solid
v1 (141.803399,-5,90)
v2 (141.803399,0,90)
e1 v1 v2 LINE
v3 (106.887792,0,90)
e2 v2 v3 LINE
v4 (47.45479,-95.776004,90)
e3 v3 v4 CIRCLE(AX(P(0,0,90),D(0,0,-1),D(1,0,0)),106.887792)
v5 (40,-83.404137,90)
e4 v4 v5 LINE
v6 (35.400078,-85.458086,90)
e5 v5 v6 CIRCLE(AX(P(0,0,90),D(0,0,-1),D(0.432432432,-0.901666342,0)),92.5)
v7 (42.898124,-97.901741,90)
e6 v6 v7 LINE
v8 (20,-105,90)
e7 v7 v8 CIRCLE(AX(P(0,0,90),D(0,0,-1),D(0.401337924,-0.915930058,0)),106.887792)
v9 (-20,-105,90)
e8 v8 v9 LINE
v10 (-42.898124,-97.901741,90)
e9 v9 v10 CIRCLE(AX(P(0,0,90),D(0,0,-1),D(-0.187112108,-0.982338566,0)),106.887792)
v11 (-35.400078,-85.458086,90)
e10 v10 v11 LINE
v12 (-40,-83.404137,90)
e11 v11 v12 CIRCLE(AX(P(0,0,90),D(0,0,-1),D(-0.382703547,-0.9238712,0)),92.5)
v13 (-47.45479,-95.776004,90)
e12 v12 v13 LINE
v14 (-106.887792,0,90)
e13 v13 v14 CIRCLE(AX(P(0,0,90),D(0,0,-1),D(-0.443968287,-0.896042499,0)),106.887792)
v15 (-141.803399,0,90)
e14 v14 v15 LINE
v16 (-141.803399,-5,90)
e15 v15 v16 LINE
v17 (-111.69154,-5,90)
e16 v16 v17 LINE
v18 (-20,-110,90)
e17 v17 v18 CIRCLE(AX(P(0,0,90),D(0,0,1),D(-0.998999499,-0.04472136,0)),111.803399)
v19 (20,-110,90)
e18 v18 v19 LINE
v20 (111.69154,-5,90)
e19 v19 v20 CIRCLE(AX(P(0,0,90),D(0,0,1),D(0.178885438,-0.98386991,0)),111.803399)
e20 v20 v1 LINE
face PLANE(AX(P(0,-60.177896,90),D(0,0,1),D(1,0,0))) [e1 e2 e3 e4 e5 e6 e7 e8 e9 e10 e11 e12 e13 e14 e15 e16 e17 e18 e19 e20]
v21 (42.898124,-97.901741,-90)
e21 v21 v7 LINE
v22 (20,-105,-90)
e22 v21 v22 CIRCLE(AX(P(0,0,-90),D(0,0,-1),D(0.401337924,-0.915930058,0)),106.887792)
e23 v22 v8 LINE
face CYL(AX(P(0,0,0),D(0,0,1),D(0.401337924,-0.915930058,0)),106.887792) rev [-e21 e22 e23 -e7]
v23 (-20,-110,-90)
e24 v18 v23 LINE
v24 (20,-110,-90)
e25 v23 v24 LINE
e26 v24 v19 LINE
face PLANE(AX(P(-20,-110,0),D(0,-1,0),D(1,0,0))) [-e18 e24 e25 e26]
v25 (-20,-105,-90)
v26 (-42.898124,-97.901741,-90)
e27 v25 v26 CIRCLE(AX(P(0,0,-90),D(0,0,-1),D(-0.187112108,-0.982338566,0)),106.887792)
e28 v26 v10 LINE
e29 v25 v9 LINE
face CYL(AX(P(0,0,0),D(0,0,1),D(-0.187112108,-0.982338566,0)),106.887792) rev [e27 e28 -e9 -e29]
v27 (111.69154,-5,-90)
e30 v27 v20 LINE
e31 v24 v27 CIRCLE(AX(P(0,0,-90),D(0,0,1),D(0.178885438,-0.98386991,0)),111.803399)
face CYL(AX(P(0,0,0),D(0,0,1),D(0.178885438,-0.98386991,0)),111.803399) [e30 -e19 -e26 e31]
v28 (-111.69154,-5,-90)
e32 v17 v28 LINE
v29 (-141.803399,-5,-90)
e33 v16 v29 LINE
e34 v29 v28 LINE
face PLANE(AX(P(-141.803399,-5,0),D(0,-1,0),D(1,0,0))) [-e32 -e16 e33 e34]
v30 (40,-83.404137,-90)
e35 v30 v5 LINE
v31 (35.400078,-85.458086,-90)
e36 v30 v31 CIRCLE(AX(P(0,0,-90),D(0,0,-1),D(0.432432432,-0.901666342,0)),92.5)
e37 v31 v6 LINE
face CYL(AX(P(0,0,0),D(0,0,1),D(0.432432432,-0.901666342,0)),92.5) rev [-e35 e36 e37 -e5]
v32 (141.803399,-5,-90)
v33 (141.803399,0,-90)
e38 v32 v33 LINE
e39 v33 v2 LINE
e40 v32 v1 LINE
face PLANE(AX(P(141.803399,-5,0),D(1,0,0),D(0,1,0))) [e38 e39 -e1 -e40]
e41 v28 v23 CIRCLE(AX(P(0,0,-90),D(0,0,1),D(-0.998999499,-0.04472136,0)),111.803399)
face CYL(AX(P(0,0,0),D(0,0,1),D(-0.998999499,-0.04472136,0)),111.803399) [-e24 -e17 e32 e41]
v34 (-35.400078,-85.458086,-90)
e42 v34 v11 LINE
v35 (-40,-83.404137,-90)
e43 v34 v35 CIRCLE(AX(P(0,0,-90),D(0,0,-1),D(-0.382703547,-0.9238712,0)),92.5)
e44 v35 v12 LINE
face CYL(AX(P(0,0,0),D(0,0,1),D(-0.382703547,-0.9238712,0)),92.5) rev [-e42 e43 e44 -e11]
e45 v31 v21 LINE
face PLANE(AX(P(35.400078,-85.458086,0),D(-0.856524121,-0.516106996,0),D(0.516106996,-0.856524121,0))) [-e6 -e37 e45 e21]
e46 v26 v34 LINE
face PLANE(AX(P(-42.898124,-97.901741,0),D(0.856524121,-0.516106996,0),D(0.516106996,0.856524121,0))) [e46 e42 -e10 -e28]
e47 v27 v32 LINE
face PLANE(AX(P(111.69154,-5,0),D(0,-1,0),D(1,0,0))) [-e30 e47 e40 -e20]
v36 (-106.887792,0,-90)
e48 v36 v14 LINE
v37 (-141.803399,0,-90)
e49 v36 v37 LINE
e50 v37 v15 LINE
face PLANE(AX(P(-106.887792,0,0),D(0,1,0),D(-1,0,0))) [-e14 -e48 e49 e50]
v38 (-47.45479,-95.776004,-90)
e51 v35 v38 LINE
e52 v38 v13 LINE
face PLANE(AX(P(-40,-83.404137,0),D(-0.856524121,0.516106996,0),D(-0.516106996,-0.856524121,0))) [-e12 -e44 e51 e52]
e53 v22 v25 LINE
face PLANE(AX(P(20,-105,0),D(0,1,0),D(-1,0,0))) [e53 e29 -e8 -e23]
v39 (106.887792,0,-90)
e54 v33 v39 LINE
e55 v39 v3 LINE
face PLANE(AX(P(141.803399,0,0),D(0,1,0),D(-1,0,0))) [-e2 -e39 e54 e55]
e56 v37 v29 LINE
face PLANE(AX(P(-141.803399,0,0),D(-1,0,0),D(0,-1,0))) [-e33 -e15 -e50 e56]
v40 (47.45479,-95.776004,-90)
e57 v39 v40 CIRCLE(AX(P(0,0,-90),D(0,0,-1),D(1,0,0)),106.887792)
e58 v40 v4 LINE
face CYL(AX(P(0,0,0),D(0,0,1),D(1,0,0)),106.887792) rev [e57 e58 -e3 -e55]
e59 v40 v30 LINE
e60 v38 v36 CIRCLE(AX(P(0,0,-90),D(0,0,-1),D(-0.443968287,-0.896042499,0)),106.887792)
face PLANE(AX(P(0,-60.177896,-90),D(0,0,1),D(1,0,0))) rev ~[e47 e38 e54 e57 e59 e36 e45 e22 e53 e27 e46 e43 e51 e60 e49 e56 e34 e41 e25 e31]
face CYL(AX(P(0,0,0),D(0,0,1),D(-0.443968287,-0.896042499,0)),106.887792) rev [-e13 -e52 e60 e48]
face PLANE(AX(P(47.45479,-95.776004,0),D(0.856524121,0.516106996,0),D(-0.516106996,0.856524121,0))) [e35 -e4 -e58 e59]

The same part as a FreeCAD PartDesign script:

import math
import FreeCAD as App
import Part
import Sketcher
Q = App.Units.Quantity

doc = App.newDocument("Part")
body = doc.addObject("PartDesign::Body", "Body")

sketch1 = doc.addObject("Sketcher::SketchObject", "Sketch")
body.addObject(sketch1)
sketch1.AttachmentSupport = (doc.XY_Plane, [""])
sketch1.MapMode = "FlatFace"
sketch1.addGeometry([
    Part.LineSegment(App.Vector(-20, -110, 0), App.Vector(20, -110, 0)),
    Part.ArcOfCircle(Part.Circle(App.Vector(0, 0, 0), App.Vector(0, 0, 1), 112), math.radians(-80), math.radians(-3)),
    Part.LineSegment(App.Vector(112, -5, 0), App.Vector(142, -5, 0)),
    Part.LineSegment(App.Vector(142, -5, 0), App.Vector(142, 0, 0)),
    Part.LineSegment(App.Vector(142, 0, 0), App.Vector(107, 0, 0)),
    Part.ArcOfCircle(Part.Circle(App.Vector(0, 0, 0), App.Vector(0, 0, 1), 107), math.radians(-64), math.radians(0)),
    Part.LineSegment(App.Vector(47, -96, 0), App.Vector(40, -83, 0)),
    Part.ArcOfCircle(Part.Circle(App.Vector(0, 0, 0), App.Vector(0, 0, 1), 93), math.radians(-67.5), math.radians(-64.38)),
    Part.LineSegment(App.Vector(35, -85, 0), App.Vector(43, -98, 0)),
    Part.ArcOfCircle(Part.Circle(App.Vector(0, 0, 0), App.Vector(0, 0, 1), 107), math.radians(-79.22), math.radians(-66.34)),
    Part.LineSegment(App.Vector(20, -105, 0), App.Vector(-20, -105, 0)),
    Part.ArcOfCircle(Part.Circle(App.Vector(0, 0, 0), App.Vector(0, 0, 1), 107), math.radians(-113.66), math.radians(-100.78)),
    Part.LineSegment(App.Vector(-43, -98, 0), App.Vector(-35, -85, 0)),
    Part.ArcOfCircle(Part.Circle(App.Vector(0, 0, 0), App.Vector(0, 0, 1), 93), math.radians(-115.62), math.radians(-112.5)),
    Part.LineSegment(App.Vector(-40, -83, 0), App.Vector(-47, -96, 0)),
    Part.ArcOfCircle(Part.Circle(App.Vector(0, 0, 0), App.Vector(0, 0, 1), 107), math.radians(180), math.radians(244)),
    Part.LineSegment(App.Vector(-107, 0, 0), App.Vector(-142, 0, 0)),
    Part.LineSegment(App.Vector(-142, 0, 0), App.Vector(-142, -5, 0)),
    Part.LineSegment(App.Vector(-142, -5, 0), App.Vector(-112, -5, 0)),
    Part.ArcOfCircle(Part.Circle(App.Vector(0, 0, 0), App.Vector(0, 0, 1), 112), math.radians(-177), math.radians(-100)),
], False)
sketch1.addConstraint([
    Sketcher.Constraint("Coincident", 0, 2, 1, 1),
    Sketcher.Constraint("Coincident", 1, 2, 2, 1),
    Sketcher.Constraint("Coincident", 2, 2, 3, 1),
    Sketcher.Constraint("Coincident", 3, 2, 4, 1),
    Sketcher.Constraint("Coincident", 4, 2, 5, 2),
    Sketcher.Constraint("Coincident", 5, 1, 6, 1),
    Sketcher.Constraint("Coincident", 6, 2, 7, 2),
    Sketcher.Constraint("Coincident", 7, 1, 8, 1),
    Sketcher.Constraint("Coincident", 8, 2, 9, 2),
    Sketcher.Constraint("Coincident", 9, 1, 10, 1),
    Sketcher.Constraint("Coincident", 10, 2, 11, 2),
    Sketcher.Constraint("Coincident", 11, 1, 12, 1),
    Sketcher.Constraint("Coincident", 12, 2, 13, 2),
    Sketcher.Constraint("Coincident", 13, 1, 14, 1),
    Sketcher.Constraint("Coincident", 14, 2, 15, 2),
    Sketcher.Constraint("Coincident", 15, 1, 16, 1),
    Sketcher.Constraint("Coincident", 16, 2, 17, 1),
    Sketcher.Constraint("Coincident", 17, 2, 18, 1),
    Sketcher.Constraint("Coincident", 18, 2, 19, 1),
    Sketcher.Constraint("Coincident", 19, 2, 0, 1),
    Sketcher.Constraint("Horizontal", 0),
    Sketcher.Constraint("Horizontal", 2),
    Sketcher.Constraint("Vertical", 3),
    Sketcher.Constraint("Horizontal", 4),
    Sketcher.Constraint("Horizontal", 10),
    Sketcher.Constraint("Horizontal", 16),
    Sketcher.Constraint("Vertical", 17),
    Sketcher.Constraint("Horizontal", 18),
    Sketcher.Constraint("Coincident", 1, 3, -1, 1),
    Sketcher.Constraint("Coincident", 5, 3, -1, 1),
    Sketcher.Constraint("Coincident", 7, 3, -1, 1),
    Sketcher.Constraint("Coincident", 9, 3, -1, 1),
    Sketcher.Constraint("Coincident", 11, 3, -1, 1),
    Sketcher.Constraint("Coincident", 13, 3, -1, 1),
    Sketcher.Constraint("Coincident", 15, 3, -1, 1),
    Sketcher.Constraint("Coincident", 19, 3, -1, 1),
    Sketcher.Constraint("Equal", 5, 9),
    Sketcher.Constraint("Equal", 9, 11),
    Sketcher.Constraint("Equal", 7, 13),
    Sketcher.Constraint("Equal", 11, 15),
    Sketcher.Constraint("Equal", 1, 19),
    Sketcher.Constraint("Symmetric", 3, 2, 16, 2, -1, 1),
    Sketcher.Constraint("PointOnObject", 3, 2, -1),
    Sketcher.Constraint("Parallel", 6, 8),
    Sketcher.Constraint("Parallel", 12, 14),
    Sketcher.Constraint("Horizontal", 8, 2, 11, 1),
    Sketcher.Constraint("Horizontal", 7, 1, 12, 2),
    Sketcher.Constraint("Horizontal", 6, 2, 13, 1),
    Sketcher.Constraint("Horizontal", 2, 2, 17, 2),
    Sketcher.Constraint("Vertical", 0, 2, 9, 1),
    Sketcher.Constraint("Radius", 7, Q("92.5 mm")),
    Sketcher.Constraint("DistanceX", 0, 1, 0, 2, Q("40 mm")),
    Sketcher.Constraint("DistanceY", 3, 1, 3, 2, Q("5 mm")),
    Sketcher.Constraint("DistanceY", 0, 2, -1, 1, Q("110 mm")),
    Sketcher.Constraint("DistanceX", -1, 1, 6, 2, Q("40 mm")),
    Sketcher.Constraint("DistanceY", 9, 1, -1, 1, Q("105 mm")),
    Sketcher.Constraint("DistanceX", 2, 1, 2, 2, Q("30.111859 mm")),
    Sketcher.Constraint("Distance", 6, Q("14.444272 mm")),
    Sketcher.Constraint("DistanceX", -1, 1, 7, 1, Q("35.400078 mm")),
])
pad1 = doc.addObject("PartDesign::Pad", "Pad")
body.addObject(pad1)
pad1.Profile = sketch1
pad1.Length = 180
pad1.Midplane = True

doc.recompute()
